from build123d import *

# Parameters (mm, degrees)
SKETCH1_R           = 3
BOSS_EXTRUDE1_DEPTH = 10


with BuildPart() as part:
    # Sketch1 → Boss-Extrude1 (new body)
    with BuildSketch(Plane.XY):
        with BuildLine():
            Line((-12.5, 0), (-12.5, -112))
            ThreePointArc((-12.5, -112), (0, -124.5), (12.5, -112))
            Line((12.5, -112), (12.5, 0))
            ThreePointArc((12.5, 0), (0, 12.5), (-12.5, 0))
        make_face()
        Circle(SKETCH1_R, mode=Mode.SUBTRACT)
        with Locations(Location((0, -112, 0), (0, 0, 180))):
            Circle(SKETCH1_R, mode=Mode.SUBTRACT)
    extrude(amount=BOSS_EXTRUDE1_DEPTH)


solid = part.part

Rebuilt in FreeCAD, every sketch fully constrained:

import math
import FreeCAD as App
import Part
import Sketcher

V = App.Vector
Q = App.Units.Quantity

doc = App.newDocument("Part")
body = doc.addObject("PartDesign::Body", "Body")

sketch1 = body.newObject("Sketcher::SketchObject", "Sketch")
sketch1.AttachmentSupport = (doc.getObject("XY_Plane"), [""])
sketch1.MapMode = "FlatFace"
sketch1.addGeometry([
    Part.LineSegment(V(-12.5, 0, 0), V(-12.5, -112, 0)),
    Part.ArcOfCircle(Part.Circle(V(0, -112, 0), V(0, 0, 1), 12.5), math.radians(180), math.radians(360)),
    Part.LineSegment(V(12.5, -112, 0), V(12.5, 0, 0)),
    Part.ArcOfCircle(Part.Circle(V(0, 0, 0), V(0, 0, 1), 12.5), math.radians(0), math.radians(180)),
    Part.Circle(V(0, -112, 0), V(0, 0, 1), 3),
    Part.Circle(V(0, 0, 0), V(0, 0, 1), 3),
], False)
sketch1.addConstraint([
    Sketcher.Constraint("Tangent", 0, 2, 1, 1),
    Sketcher.Constraint("Tangent", 1, 2, 2, 1),
    Sketcher.Constraint("Tangent", 2, 2, 3, 1),
    Sketcher.Constraint("Tangent", 3, 2, 0, 1),
    Sketcher.Constraint("Vertical", 0),
    Sketcher.Constraint("Vertical", 2),
    Sketcher.Constraint("Coincident", 3, 3, -1, 1),
    Sketcher.Constraint("Coincident", 5, 3, -1, 1),
    Sketcher.Constraint("Coincident", 4, 3, 1, 3),
    Sketcher.Constraint("Equal", 4, 5),
    Sketcher.Constraint("Diameter", 4, Q("6 mm")),
    Sketcher.Constraint("Radius", 1, Q("12.5 mm")),
    Sketcher.Constraint("DistanceY", 0, 2, 0, 1, Q("112 mm")),
])
pad1 = body.newObject("PartDesign::Pad", "Pad")
pad1.Profile = sketch1
pad1.Length = 10

doc.recompute()
